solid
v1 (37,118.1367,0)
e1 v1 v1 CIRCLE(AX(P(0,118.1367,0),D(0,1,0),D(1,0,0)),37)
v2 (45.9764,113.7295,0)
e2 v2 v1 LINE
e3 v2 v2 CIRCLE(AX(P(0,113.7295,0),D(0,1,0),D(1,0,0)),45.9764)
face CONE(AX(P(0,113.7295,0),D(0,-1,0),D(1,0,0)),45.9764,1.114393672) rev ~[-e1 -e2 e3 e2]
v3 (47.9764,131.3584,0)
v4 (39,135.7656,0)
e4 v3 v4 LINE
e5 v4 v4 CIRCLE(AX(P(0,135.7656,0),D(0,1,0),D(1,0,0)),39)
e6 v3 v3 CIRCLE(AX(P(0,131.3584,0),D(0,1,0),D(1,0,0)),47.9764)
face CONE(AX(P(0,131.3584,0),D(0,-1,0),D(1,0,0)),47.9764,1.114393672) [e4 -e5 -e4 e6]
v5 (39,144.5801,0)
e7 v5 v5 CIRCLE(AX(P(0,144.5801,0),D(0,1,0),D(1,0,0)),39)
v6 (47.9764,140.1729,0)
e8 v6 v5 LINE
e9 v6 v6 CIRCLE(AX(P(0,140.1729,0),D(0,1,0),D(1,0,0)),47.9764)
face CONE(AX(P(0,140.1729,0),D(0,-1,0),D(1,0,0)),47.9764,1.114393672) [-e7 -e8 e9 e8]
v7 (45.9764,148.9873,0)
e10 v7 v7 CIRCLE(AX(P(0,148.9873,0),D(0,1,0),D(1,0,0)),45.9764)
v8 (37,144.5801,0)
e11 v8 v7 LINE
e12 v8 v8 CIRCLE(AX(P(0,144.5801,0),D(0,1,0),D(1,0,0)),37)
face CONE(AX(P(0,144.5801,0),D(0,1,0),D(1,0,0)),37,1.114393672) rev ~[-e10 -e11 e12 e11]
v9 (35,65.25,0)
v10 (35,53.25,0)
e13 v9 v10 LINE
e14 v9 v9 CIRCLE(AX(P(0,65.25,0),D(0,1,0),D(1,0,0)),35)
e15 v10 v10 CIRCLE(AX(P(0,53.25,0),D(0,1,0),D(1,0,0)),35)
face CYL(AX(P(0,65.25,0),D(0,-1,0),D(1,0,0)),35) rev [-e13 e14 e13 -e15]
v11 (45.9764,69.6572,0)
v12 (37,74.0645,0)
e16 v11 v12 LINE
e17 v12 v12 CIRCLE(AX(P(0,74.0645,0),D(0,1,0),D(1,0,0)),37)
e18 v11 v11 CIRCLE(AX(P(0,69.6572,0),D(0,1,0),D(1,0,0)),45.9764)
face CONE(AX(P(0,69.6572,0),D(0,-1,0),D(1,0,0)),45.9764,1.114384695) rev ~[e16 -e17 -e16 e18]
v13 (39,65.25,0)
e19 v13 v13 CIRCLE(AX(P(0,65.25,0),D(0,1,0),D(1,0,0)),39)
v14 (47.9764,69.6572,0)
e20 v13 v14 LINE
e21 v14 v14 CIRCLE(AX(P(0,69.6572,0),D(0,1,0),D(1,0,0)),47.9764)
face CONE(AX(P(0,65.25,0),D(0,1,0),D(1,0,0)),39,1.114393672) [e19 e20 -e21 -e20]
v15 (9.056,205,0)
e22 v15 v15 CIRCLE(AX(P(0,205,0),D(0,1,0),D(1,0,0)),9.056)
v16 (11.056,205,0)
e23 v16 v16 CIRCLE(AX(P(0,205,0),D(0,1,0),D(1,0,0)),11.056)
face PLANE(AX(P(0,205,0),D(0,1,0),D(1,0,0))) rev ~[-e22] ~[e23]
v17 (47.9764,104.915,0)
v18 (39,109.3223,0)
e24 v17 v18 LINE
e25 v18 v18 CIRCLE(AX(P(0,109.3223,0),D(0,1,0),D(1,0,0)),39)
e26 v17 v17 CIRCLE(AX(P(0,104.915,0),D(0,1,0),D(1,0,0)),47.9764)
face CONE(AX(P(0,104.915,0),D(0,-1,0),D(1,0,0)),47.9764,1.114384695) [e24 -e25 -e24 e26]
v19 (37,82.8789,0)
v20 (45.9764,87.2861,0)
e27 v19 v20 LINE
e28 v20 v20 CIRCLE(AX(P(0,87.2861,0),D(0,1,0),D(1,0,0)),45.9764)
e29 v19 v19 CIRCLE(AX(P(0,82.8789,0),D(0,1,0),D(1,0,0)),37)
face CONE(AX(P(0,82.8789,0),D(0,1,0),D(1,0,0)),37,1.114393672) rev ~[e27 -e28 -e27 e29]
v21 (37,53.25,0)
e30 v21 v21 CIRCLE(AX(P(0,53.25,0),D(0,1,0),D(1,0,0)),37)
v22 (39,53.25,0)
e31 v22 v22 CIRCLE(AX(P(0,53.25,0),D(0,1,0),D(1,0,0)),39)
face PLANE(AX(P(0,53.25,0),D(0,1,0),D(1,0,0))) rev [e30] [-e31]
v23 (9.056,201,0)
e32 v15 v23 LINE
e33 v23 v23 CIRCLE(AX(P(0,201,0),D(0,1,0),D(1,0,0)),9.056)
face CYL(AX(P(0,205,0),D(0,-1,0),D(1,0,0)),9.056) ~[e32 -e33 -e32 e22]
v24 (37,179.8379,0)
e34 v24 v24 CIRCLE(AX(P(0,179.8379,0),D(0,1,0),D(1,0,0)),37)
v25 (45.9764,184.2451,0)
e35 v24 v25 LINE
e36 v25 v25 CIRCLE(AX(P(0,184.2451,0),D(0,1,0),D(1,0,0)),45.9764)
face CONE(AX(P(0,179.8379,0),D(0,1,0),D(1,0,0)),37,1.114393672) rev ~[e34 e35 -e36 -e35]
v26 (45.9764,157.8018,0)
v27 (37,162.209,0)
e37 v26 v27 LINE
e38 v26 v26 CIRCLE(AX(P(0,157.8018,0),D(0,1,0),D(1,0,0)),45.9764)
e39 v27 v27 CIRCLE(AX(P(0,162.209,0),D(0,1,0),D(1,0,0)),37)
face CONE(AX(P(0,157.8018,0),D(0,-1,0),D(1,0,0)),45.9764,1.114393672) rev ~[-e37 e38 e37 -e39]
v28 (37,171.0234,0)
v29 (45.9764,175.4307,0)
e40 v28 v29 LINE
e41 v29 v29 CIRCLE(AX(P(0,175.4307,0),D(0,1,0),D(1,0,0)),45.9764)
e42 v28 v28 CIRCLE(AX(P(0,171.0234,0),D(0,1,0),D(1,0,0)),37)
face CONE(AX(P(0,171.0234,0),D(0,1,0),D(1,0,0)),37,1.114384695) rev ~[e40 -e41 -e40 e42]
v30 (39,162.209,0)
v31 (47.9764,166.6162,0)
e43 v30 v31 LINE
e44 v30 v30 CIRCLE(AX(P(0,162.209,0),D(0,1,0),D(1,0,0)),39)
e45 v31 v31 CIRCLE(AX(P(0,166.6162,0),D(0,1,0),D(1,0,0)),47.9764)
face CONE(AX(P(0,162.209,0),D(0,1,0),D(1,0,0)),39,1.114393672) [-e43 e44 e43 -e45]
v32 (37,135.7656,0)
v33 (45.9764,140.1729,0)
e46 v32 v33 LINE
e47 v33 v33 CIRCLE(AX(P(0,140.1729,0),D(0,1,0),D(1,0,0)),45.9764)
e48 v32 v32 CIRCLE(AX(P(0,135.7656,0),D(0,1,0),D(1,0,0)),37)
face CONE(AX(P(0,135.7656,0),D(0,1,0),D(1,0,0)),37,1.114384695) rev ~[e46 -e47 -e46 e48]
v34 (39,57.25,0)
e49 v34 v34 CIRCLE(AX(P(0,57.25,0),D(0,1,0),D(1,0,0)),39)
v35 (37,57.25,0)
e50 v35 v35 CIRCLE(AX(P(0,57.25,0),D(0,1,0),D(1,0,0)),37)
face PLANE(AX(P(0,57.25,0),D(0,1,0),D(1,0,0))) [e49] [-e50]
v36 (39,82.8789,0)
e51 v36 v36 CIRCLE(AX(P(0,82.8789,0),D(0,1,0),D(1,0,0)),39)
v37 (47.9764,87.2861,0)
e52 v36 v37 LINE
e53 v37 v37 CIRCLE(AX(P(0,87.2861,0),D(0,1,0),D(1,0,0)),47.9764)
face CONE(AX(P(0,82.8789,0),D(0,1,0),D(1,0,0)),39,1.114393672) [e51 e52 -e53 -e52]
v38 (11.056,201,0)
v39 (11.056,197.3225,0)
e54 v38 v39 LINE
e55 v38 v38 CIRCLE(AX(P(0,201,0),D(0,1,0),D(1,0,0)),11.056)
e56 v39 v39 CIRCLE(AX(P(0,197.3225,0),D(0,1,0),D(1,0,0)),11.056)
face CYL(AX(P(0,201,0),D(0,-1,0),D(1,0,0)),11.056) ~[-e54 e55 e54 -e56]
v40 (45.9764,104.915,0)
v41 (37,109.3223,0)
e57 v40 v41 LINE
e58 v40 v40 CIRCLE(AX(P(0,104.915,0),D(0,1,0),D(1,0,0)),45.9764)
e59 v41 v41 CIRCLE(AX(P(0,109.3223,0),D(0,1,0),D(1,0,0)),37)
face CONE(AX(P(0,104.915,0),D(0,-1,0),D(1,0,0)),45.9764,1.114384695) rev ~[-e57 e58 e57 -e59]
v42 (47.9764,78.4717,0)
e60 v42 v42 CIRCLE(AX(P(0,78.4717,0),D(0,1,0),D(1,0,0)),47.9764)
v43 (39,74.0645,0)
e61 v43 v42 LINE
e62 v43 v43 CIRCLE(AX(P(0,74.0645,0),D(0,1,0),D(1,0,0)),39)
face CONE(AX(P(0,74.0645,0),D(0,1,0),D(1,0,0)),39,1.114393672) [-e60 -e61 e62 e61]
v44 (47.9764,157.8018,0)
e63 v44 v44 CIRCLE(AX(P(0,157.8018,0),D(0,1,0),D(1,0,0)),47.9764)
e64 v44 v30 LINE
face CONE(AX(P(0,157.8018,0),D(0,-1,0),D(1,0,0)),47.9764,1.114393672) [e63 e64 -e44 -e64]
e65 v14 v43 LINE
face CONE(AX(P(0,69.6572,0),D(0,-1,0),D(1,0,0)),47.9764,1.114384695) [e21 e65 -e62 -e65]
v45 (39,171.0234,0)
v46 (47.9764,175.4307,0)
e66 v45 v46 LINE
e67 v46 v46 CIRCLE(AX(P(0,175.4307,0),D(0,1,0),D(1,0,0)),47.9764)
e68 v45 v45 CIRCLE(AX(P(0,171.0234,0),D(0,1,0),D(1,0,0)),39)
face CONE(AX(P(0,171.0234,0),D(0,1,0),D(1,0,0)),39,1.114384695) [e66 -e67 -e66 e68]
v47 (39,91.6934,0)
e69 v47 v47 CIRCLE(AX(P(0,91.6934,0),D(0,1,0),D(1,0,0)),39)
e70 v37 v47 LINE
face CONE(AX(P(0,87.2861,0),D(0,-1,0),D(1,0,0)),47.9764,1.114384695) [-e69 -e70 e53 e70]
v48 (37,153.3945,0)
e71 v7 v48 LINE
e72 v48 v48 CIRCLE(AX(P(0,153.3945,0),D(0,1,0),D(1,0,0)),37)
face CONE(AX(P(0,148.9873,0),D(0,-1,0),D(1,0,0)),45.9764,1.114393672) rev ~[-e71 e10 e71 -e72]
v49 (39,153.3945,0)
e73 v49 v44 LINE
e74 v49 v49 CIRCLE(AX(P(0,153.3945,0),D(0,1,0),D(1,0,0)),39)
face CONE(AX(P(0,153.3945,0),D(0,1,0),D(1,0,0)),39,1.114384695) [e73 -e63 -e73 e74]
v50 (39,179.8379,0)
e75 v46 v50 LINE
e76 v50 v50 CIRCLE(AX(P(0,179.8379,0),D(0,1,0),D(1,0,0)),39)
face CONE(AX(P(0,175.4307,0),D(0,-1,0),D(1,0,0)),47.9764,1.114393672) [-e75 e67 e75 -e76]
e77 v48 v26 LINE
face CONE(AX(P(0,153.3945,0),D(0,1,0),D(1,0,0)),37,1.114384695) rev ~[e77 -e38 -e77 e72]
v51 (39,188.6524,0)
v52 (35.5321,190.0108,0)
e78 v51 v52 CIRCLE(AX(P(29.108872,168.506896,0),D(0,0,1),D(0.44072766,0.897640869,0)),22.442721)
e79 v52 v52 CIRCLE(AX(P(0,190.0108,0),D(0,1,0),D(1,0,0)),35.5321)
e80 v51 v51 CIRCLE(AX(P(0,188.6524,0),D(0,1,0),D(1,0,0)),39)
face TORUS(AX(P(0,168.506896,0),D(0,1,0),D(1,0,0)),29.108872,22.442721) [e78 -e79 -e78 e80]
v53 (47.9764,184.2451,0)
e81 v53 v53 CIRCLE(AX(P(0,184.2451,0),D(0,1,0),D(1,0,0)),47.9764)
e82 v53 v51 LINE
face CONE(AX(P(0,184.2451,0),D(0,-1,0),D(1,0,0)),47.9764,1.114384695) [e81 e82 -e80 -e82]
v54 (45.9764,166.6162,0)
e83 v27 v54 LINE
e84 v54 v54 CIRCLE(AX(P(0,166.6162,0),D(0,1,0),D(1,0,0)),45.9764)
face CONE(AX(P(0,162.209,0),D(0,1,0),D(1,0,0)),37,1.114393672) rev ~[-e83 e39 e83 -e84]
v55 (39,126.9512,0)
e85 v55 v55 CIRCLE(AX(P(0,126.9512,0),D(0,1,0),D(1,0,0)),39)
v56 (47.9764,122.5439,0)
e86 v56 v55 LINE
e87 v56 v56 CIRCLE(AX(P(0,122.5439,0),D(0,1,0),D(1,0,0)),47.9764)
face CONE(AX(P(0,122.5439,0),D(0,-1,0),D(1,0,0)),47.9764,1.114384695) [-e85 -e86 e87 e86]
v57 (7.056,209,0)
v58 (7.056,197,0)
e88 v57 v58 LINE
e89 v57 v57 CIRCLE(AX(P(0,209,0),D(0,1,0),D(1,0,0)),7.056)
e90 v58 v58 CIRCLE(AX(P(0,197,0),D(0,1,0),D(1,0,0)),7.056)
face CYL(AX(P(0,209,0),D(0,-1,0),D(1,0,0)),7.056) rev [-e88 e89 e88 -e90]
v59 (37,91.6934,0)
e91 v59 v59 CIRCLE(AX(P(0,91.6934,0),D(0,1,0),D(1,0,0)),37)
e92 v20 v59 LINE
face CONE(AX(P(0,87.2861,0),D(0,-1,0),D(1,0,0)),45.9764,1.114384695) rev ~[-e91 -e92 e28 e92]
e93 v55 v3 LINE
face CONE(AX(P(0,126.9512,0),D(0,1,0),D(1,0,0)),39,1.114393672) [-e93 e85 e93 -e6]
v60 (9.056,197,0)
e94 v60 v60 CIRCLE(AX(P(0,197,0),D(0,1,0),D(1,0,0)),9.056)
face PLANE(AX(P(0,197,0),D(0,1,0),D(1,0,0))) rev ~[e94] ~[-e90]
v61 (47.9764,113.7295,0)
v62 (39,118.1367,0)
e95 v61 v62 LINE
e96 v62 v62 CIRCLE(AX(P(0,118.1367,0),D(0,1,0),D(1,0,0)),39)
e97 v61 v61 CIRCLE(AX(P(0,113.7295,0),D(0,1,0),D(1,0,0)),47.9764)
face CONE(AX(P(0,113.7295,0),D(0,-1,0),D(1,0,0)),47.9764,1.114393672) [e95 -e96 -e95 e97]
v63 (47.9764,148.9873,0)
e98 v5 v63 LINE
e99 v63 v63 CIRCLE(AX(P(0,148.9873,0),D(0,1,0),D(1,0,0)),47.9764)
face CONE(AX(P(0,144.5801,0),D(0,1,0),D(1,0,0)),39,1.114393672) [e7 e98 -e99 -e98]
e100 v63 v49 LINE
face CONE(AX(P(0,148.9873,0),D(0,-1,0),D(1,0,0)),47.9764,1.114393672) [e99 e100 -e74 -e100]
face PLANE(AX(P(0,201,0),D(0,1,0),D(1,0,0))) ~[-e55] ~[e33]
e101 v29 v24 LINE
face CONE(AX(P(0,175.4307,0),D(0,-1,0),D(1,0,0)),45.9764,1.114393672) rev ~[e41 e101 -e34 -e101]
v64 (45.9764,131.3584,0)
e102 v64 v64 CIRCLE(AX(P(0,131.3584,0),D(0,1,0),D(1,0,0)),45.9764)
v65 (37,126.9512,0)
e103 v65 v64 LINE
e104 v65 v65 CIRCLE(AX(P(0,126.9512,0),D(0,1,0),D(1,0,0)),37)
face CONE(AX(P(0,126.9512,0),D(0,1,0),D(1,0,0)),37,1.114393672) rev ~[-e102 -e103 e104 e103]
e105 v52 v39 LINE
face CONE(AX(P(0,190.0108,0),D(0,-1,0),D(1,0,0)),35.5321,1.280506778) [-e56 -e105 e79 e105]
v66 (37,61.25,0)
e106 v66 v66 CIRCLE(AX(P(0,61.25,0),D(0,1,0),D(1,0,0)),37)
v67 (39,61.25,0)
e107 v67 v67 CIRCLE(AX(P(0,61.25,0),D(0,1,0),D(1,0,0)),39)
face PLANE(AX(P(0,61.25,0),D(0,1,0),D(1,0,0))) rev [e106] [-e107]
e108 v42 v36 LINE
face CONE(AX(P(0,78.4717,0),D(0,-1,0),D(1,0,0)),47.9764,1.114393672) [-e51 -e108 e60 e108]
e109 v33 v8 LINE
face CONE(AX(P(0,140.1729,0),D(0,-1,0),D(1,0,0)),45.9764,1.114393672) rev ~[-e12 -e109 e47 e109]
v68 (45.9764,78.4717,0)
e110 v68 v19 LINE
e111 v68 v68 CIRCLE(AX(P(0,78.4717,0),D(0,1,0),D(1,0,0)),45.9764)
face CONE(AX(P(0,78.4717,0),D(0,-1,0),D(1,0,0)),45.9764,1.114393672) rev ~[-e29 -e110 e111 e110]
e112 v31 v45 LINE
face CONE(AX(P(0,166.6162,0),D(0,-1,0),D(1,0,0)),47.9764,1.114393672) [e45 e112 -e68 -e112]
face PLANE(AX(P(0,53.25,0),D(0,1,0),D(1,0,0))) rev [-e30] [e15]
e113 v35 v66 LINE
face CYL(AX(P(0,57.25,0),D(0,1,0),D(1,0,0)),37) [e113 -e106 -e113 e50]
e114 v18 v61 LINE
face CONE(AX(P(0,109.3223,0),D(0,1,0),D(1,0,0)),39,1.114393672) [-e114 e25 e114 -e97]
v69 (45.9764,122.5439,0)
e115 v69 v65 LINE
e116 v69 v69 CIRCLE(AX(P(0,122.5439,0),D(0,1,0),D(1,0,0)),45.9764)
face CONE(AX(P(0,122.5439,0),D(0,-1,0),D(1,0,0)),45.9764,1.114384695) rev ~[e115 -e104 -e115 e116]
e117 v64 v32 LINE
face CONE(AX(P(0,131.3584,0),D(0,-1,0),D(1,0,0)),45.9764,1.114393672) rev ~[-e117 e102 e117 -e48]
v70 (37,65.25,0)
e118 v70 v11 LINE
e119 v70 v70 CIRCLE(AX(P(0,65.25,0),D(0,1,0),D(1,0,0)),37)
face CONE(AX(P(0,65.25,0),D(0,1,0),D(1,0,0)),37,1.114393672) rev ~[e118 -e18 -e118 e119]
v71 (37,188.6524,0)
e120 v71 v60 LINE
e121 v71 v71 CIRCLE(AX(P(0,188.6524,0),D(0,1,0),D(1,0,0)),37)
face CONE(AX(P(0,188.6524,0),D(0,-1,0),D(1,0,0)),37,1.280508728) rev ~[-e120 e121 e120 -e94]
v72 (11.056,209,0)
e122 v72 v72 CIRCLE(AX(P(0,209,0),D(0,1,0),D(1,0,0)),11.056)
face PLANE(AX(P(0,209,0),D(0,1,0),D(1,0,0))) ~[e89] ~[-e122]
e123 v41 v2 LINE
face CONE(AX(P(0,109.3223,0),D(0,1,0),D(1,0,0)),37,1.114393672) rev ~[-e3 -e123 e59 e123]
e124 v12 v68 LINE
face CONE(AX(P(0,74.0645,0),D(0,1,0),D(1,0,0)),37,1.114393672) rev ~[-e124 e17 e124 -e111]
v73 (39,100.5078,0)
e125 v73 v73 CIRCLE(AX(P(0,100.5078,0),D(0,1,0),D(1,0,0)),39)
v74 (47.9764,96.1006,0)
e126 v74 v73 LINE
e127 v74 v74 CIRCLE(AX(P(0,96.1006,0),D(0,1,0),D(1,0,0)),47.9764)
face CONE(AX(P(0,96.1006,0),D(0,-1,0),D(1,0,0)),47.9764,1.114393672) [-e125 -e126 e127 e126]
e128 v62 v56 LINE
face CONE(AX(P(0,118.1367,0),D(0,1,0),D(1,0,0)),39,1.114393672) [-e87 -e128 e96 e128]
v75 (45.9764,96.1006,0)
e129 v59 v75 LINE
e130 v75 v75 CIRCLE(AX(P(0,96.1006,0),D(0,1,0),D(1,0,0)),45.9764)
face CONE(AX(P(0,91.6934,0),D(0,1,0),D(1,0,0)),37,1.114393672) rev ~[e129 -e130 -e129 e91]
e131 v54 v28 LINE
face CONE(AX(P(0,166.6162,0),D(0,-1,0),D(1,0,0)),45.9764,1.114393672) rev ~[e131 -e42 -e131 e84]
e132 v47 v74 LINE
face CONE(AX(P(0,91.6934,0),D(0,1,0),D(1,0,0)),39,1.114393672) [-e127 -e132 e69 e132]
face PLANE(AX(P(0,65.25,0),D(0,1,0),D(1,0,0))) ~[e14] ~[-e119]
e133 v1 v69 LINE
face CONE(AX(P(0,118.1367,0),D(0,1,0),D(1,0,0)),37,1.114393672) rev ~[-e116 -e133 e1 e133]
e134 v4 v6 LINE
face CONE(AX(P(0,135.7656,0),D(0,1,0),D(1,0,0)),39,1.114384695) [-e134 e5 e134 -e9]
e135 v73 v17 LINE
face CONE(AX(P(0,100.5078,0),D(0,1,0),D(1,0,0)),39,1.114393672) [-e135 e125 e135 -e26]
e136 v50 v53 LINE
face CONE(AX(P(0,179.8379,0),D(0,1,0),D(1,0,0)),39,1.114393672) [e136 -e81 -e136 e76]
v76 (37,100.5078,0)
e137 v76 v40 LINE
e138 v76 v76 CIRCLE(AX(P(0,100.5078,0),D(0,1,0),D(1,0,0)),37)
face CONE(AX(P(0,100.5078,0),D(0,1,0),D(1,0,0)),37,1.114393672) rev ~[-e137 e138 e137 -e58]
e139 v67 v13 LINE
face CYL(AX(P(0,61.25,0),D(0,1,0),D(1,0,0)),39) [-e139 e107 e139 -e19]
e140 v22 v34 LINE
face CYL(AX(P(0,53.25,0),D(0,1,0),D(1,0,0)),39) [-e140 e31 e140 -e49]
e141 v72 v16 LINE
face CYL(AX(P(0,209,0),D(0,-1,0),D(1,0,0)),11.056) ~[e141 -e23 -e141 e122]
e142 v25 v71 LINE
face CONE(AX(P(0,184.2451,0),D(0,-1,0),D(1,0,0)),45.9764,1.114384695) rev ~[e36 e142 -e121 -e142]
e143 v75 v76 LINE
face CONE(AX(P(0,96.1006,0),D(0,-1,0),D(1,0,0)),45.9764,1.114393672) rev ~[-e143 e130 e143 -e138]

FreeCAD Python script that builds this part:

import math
import FreeCAD as App
import Part
import Sketcher

V = App.Vector
Q = App.Units.Quantity

doc = App.newDocument("Part")
params = doc.addObject("Spreadsheet::Sheet", "Params")
for row, (alias, value) in enumerate([
    ("sketch1_width", "2 mm"),
    ("sketch1_length", "10 mm"),
    ("revolution_angle", "360 deg"),
], start=1):
    params.set(f"A{row}", alias)
    params.set(f"B{row}", "=" + value)
    params.setAlias(f"B{row}", alias)

body = doc.addObject("PartDesign::Body", "Body")

# Sketch on XY plane
sketch1 = doc.addObject("Sketcher::SketchObject", "Sketch")
body.addObject(sketch1)
sketch1.AttachmentSupport = (doc.XY_Plane, [""])
sketch1.MapMode = "FlatFace"
sketch1.addGeometry(Part.LineSegment(V(37, 65.2, 0), V(35, 65.2, 0)), False)
sketch1.addGeometry(Part.LineSegment(V(35, 65.2, 0), V(35, 53.2, 0)), False)
sketch1.addGeometry(Part.LineSegment(V(35, 53.2, 0), V(39, 53.2, 0)), False)
sketch1.addGeometry(Part.LineSegment(V(39, 53.2, 0), V(39, 57.2, 0)), False)
sketch1.addGeometry(Part.LineSegment(V(39, 57.2, 0), V(37, 57.2, 0)), False)
sketch1.addGeometry(Part.LineSegment(V(37, 57.2, 0), V(37, 61.2, 0)), False)
sketch1.addGeometry(Part.LineSegment(V(37, 61.2, 0), V(39, 61.2, 0)), False)
sketch1.addGeometry(Part.LineSegment(V(39, 61.2, 0), V(39, 65.2, 0)), False)
sketch1.addGeometry(Part.LineSegment(V(39, 65.2, 0), V(48, 69.7, 0)), False)
sketch1.addGeometry(Part.LineSegment(V(48, 69.7, 0), V(39, 74.1, 0)), False)
sketch1.addGeometry(Part.LineSegment(V(39, 74.1, 0), V(48, 78.5, 0)), False)
sketch1.addGeometry(Part.LineSegment(V(48, 78.5, 0), V(39, 82.9, 0)), False)
sketch1.addGeometry(Part.LineSegment(V(39, 82.9, 0), V(48, 87.3, 0)), False)
sketch1.addGeometry(Part.LineSegment(V(48, 87.3, 0), V(39, 91.7, 0)), False)
sketch1.addGeometry(Part.LineSegment(V(39, 91.7, 0), V(48, 96.1, 0)), False)
sketch1.addGeometry(Part.LineSegment(V(48, 96.1, 0), V(39, 100.5, 0)), False)
sketch1.addGeometry(Part.LineSegment(V(39, 100.5, 0), V(48, 104.9, 0)), False)
sketch1.addGeometry(Part.LineSegment(V(48, 104.9, 0), V(39, 109.3, 0)), False)
sketch1.addGeometry(Part.LineSegment(V(39, 109.3, 0), V(48, 113.7, 0)), False)
sketch1.addGeometry(Part.LineSegment(V(48, 113.7, 0), V(39, 118.1, 0)), False)
sketch1.addGeometry(Part.LineSegment(V(39, 118.1, 0), V(48, 122.5, 0)), False)
sketch1.addGeometry(Part.LineSegment(V(48, 122.5, 0), V(39, 127, 0)), False)
sketch1.addGeometry(Part.LineSegment(V(39, 127, 0), V(48, 131.4, 0)), False)
sketch1.addGeometry(Part.LineSegment(V(48, 131.4, 0), V(39, 135.8, 0)), False)
sketch1.addGeometry(Part.LineSegment(V(39, 135.8, 0), V(48, 140.2, 0)), False)
sketch1.addGeometry(Part.LineSegment(V(48, 140.2, 0), V(39, 144.6, 0)), False)
sketch1.addGeometry(Part.LineSegment(V(39, 144.6, 0), V(48, 149, 0)), False)
sketch1.addGeometry(Part.LineSegment(V(48, 149, 0), V(39, 153.4, 0)), False)
sketch1.addGeometry(Part.LineSegment(V(39, 153.4, 0), V(48, 157.8, 0)), False)
sketch1.addGeometry(Part.LineSegment(V(48, 157.8, 0), V(39, 162.2, 0)), False)
sketch1.addGeometry(Part.LineSegment(V(39, 162.2, 0), V(48, 166.6, 0)), False)
sketch1.addGeometry(Part.LineSegment(V(48, 166.6, 0), V(39, 171, 0)), False)
sketch1.addGeometry(Part.LineSegment(V(39, 171, 0), V(48, 175.4, 0)), False)
sketch1.addGeometry(Part.LineSegment(V(48, 175.4, 0), V(39, 179.8, 0)), False)
sketch1.addGeometry(Part.LineSegment(V(39, 179.8, 0), V(48, 184.2, 0)), False)
sketch1.addGeometry(Part.LineSegment(V(48, 184.2, 0), V(39, 188.7, 0)), False)
sketch1.addGeometry(Part.ArcOfCircle(Part.Circle(V(29.1, 168.5, 0), V(0, 0, 1), 22.4), math.radians(63.85), math.radians(73.37)), False)
sketch1.addGeometry(Part.LineSegment(V(35.5, 190, 0), V(11.1, 197.3, 0)), False)
sketch1.addGeometry(Part.LineSegment(V(11.1, 197.3, 0), V(11.1, 201, 0)), False)
sketch1.addGeometry(Part.LineSegment(V(11.1, 201, 0), V(9.1, 201, 0)), False)
sketch1.addGeometry(Part.LineSegment(V(9.1, 201, 0), V(9.1, 205, 0)), False)
sketch1.addGeometry(Part.LineSegment(V(9.1, 205, 0), V(11.1, 205, 0)), False)
sketch1.addGeometry(Part.LineSegment(V(11.1, 205, 0), V(11.1, 209, 0)), False)
sketch1.addGeometry(Part.LineSegment(V(11.1, 209, 0), V(7.1, 209, 0)), False)
sketch1.addGeometry(Part.LineSegment(V(7.1, 209, 0), V(7.1, 197, 0)), False)
sketch1.addGeometry(Part.LineSegment(V(7.1, 197, 0), V(9.1, 197, 0)), False)
sketch1.addGeometry(Part.LineSegment(V(9.1, 197, 0), V(37, 188.7, 0)), False)
sketch1.addGeometry(Part.LineSegment(V(37, 188.7, 0), V(46, 184.2, 0)), False)
sketch1.addGeometry(Part.LineSegment(V(46, 184.2, 0), V(37, 179.8, 0)), False)
sketch1.addGeometry(Part.LineSegment(V(37, 179.8, 0), V(46, 175.4, 0)), False)
sketch1.addGeometry(Part.LineSegment(V(46, 175.4, 0), V(37, 171, 0)), False)
sketch1.addGeometry(Part.LineSegment(V(37, 171, 0), V(46, 166.6, 0)), False)
sketch1.addGeometry(Part.LineSegment(V(46, 166.6, 0), V(37, 162.2, 0)), False)
sketch1.addGeometry(Part.LineSegment(V(37, 162.2, 0), V(46, 157.8, 0)), False)
sketch1.addGeometry(Part.LineSegment(V(46, 157.8, 0), V(37, 153.4, 0)), False)
sketch1.addGeometry(Part.LineSegment(V(37, 153.4, 0), V(46, 149, 0)), False)
sketch1.addGeometry(Part.LineSegment(V(46, 149, 0), V(37, 144.6, 0)), False)
sketch1.addGeometry(Part.LineSegment(V(37, 144.6, 0), V(46, 140.2, 0)), False)
sketch1.addGeometry(Part.LineSegment(V(46, 140.2, 0), V(37, 135.8, 0)), False)
sketch1.addGeometry(Part.LineSegment(V(37, 135.8, 0), V(46, 131.4, 0)), False)
sketch1.addGeometry(Part.LineSegment(V(46, 131.4, 0), V(37, 127, 0)), False)
sketch1.addGeometry(Part.LineSegment(V(37, 127, 0), V(46, 122.5, 0)), False)
sketch1.addGeometry(Part.LineSegment(V(46, 122.5, 0), V(37, 118.1, 0)), False)
sketch1.addGeometry(Part.LineSegment(V(37, 118.1, 0), V(46, 113.7, 0)), False)
sketch1.addGeometry(Part.LineSegment(V(46, 113.7, 0), V(37, 109.3, 0)), False)
sketch1.addGeometry(Part.LineSegment(V(37, 109.3, 0), V(46, 104.9, 0)), False)
sketch1.addGeometry(Part.LineSegment(V(46, 104.9, 0), V(37, 100.5, 0)), False)
sketch1.addGeometry(Part.LineSegment(V(37, 100.5, 0), V(46, 96.1, 0)), False)
sketch1.addGeometry(Part.LineSegment(V(46, 96.1, 0), V(37, 91.7, 0)), False)
sketch1.addGeometry(Part.LineSegment(V(37, 91.7, 0), V(46, 87.3, 0)), False)
sketch1.addGeometry(Part.LineSegment(V(46, 87.3, 0), V(37, 82.9, 0)), False)
sketch1.addGeometry(Part.LineSegment(V(37, 82.9, 0), V(46, 78.5, 0)), False)
sketch1.addGeometry(Part.LineSegment(V(46, 78.5, 0), V(37, 74.1, 0)), False)
sketch1.addGeometry(Part.LineSegment(V(37, 74.1, 0), V(46, 69.7, 0)), False)
sketch1.addGeometry(Part.LineSegment(V(46, 69.7, 0), V(37, 65.2, 0)), False)
sketch1.addConstraint(Sketcher.Constraint("Coincident", 0, 2, 1, 1))
sketch1.addConstraint(Sketcher.Constraint("Coincident", 1, 2, 2, 1))
sketch1.addConstraint(Sketcher.Constraint("Coincident", 2, 2, 3, 1))
sketch1.addConstraint(Sketcher.Constraint("Coincident", 3, 2, 4, 1))
sketch1.addConstraint(Sketcher.Constraint("Coincident", 4, 2, 5, 1))
sketch1.addConstraint(Sketcher.Constraint("Coincident", 5, 2, 6, 1))
sketch1.addConstraint(Sketcher.Constraint("Coincident", 6, 2, 7, 1))
sketch1.addConstraint(Sketcher.Constraint("Coincident", 7, 2, 8, 1))
sketch1.addConstraint(Sketcher.Constraint("Coincident", 8, 2, 9, 1))
sketch1.addConstraint(Sketcher.Constraint("Coincident", 9, 2, 10, 1))
sketch1.addConstraint(Sketcher.Constraint("Coincident", 10, 2, 11, 1))
sketch1.addConstraint(Sketcher.Constraint("Coincident", 11, 2, 12, 1))
sketch1.addConstraint(Sketcher.Constraint("Coincident", 12, 2, 13, 1))
sketch1.addConstraint(Sketcher.Constraint("Coincident", 13, 2, 14, 1))
sketch1.addConstraint(Sketcher.Constraint("Coincident", 14, 2, 15, 1))
sketch1.addConstraint(Sketcher.Constraint("Coincident", 15, 2, 16, 1))
sketch1.addConstraint(Sketcher.Constraint("Coincident", 16, 2, 17, 1))
sketch1.addConstraint(Sketcher.Constraint("Coincident", 17, 2, 18, 1))
sketch1.addConstraint(Sketcher.Constraint("Coincident", 18, 2, 19, 1))
sketch1.addConstraint(Sketcher.Constraint("Coincident", 19, 2, 20, 1))
sketch1.addConstraint(Sketcher.Constraint("Coincident", 20, 2, 21, 1))
sketch1.addConstraint(Sketcher.Constraint("Coincident", 21, 2, 22, 1))
sketch1.addConstraint(Sketcher.Constraint("Coincident", 22, 2, 23, 1))
sketch1.addConstraint(Sketcher.Constraint("Coincident", 23, 2, 24, 1))
sketch1.addConstraint(Sketcher.Constraint("Coincident", 24, 2, 25, 1))
sketch1.addConstraint(Sketcher.Constraint("Coincident", 25, 2, 26, 1))
sketch1.addConstraint(Sketcher.Constraint("Coincident", 26, 2, 27, 1))
sketch1.addConstraint(Sketcher.Constraint("Coincident", 27, 2, 28, 1))
sketch1.addConstraint(Sketcher.Constraint("Coincident", 28, 2, 29, 1))
sketch1.addConstraint(Sketcher.Constraint("Coincident", 29, 2, 30, 1))
sketch1.addConstraint(Sketcher.Constraint("Coincident", 30, 2, 31, 1))
sketch1.addConstraint(Sketcher.Constraint("Coincident", 31, 2, 32, 1))
sketch1.addConstraint(Sketcher.Constraint("Coincident", 32, 2, 33, 1))
sketch1.addConstraint(Sketcher.Constraint("Coincident", 33, 2, 34, 1))
sketch1.addConstraint(Sketcher.Constraint("Coincident", 34, 2, 35, 1))
sketch1.addConstraint(Sketcher.Constraint("Tangent", 35, 2, 36, 1))
sketch1.addConstraint(Sketcher.Constraint("Tangent", 36, 2, 37, 1))
sketch1.addConstraint(Sketcher.Constraint("Coincident", 37, 2, 38, 1))
sketch1.addConstraint(Sketcher.Constraint("Coincident", 38, 2, 39, 1))
sketch1.addConstraint(Sketcher.Constraint("Coincident", 39, 2, 40, 1))
sketch1.addConstraint(Sketcher.Constraint("Coincident", 40, 2, 41, 1))
sketch1.addConstraint(Sketcher.Constraint("Coincident", 41, 2, 42, 1))
sketch1.addConstraint(Sketcher.Constraint("Coincident", 42, 2, 43, 1))
sketch1.addConstraint(Sketcher.Constraint("Coincident", 43, 2, 44, 1))
sketch1.addConstraint(Sketcher.Constraint("Coincident", 44, 2, 45, 1))
sketch1.addConstraint(Sketcher.Constraint("Coincident", 45, 2, 46, 1))
sketch1.addConstraint(Sketcher.Constraint("Coincident", 46, 2, 47, 1))
sketch1.addConstraint(Sketcher.Constraint("Coincident", 47, 2, 48, 1))
sketch1.addConstraint(Sketcher.Constraint("Coincident", 48, 2, 49, 1))
sketch1.addConstraint(Sketcher.Constraint("Coincident", 49, 2, 50, 1))
sketch1.addConstraint(Sketcher.Constraint("Coincident", 50, 2, 51, 1))
sketch1.addConstraint(Sketcher.Constraint("Coincident", 51, 2, 52, 1))
sketch1.addConstraint(Sketcher.Constraint("Coincident", 52, 2, 53, 1))
sketch1.addConstraint(Sketcher.Constraint("Coincident", 53, 2, 54, 1))
sketch1.addConstraint(Sketcher.Constraint("Coincident", 54, 2, 55, 1))
sketch1.addConstraint(Sketcher.Constraint("Coincident", 55, 2, 56, 1))
sketch1.addConstraint(Sketcher.Constraint("Coincident", 56, 2, 57, 1))
sketch1.addConstraint(Sketcher.Constraint("Coincident", 57, 2, 58, 1))
sketch1.addConstraint(Sketcher.Constraint("Coincident", 58, 2, 59, 1))
sketch1.addConstraint(Sketcher.Constraint("Coincident", 59, 2, 60, 1))
sketch1.addConstraint(Sketcher.Constraint("Coincident", 60, 2, 61, 1))
sketch1.addConstraint(Sketcher.Constraint("Coincident", 61, 2, 62, 1))
sketch1.addConstraint(Sketcher.Constraint("Coincident", 62, 2, 63, 1))
sketch1.addConstraint(Sketcher.Constraint("Coincident", 63, 2, 64, 1))
sketch1.addConstraint(Sketcher.Constraint("Coincident", 64, 2, 65, 1))
sketch1.addConstraint(Sketcher.Constraint("Coincident", 65, 2, 66, 1))
sketch1.addConstraint(Sketcher.Constraint("Coincident", 66, 2, 67, 1))
sketch1.addConstraint(Sketcher.Constraint("Coincident", 67, 2, 68, 1))
sketch1.addConstraint(Sketcher.Constraint("Coincident", 68, 2, 69, 1))
sketch1.addConstraint(Sketcher.Constraint("Coincident", 69, 2, 70, 1))
sketch1.addConstraint(Sketcher.Constraint("Coincident", 70, 2, 71, 1))
sketch1.addConstraint(Sketcher.Constraint("Coincident", 71, 2, 72, 1))
sketch1.addConstraint(Sketcher.Constraint("Coincident", 72, 2, 73, 1))
sketch1.addConstraint(Sketcher.Constraint("Coincident", 73, 2, 74, 1))
sketch1.addConstraint(Sketcher.Constraint("Coincident", 74, 2, 0, 1))
sketch1.addConstraint(Sketcher.Constraint("Horizontal", 0))
sketch1.addConstraint(Sketcher.Constraint("Vertical", 1))
sketch1.addConstraint(Sketcher.Constraint("Horizontal", 2))
sketch1.addConstraint(Sketcher.Constraint("Vertical", 3))
sketch1.addConstraint(Sketcher.Constraint("Horizontal", 4))
sketch1.addConstraint(Sketcher.Constraint("Vertical", 5))
sketch1.addConstraint(Sketcher.Constraint("Horizontal", 6))
sketch1.addConstraint(Sketcher.Constraint("Vertical", 7))
sketch1.addConstraint(Sketcher.Constraint("Vertical", 38))
sketch1.addConstraint(Sketcher.Constraint("Horizontal", 39))
sketch1.addConstraint(Sketcher.Constraint("Vertical", 40))
sketch1.addConstraint(Sketcher.Constraint("Horizontal", 41))
sketch1.addConstraint(Sketcher.Constraint("Vertical", 42))
sketch1.addConstraint(Sketcher.Constraint("Horizontal", 43))
sketch1.addConstraint(Sketcher.Constraint("Vertical", 44))
sketch1.addConstraint(Sketcher.Constraint("Horizontal", 45))
sketch1.addConstraint(Sketcher.Constraint("Parallel", 8, 10))
sketch1.addConstraint(Sketcher.Constraint("Parallel", 9, 11))
sketch1.addConstraint(Sketcher.Constraint("Parallel", 10, 12))
sketch1.addConstraint(Sketcher.Constraint("Parallel", 11, 13))
sketch1.addConstraint(Sketcher.Constraint("Parallel", 12, 14))
sketch1.addConstraint(Sketcher.Constraint("Parallel", 13, 15))
sketch1.addConstraint(Sketcher.Constraint("Parallel", 14, 16))
sketch1.addConstraint(Sketcher.Constraint("Parallel", 15, 17))
sketch1.addConstraint(Sketcher.Constraint("Parallel", 16, 18))
sketch1.addConstraint(Sketcher.Constraint("Parallel", 17, 19))
sketch1.addConstraint(Sketcher.Constraint("Parallel", 18, 20))
sketch1.addConstraint(Sketcher.Constraint("Parallel", 19, 21))
sketch1.addConstraint(Sketcher.Constraint("Parallel", 20, 22))
sketch1.addConstraint(Sketcher.Constraint("Parallel", 21, 23))
sketch1.addConstraint(Sketcher.Constraint("Parallel", 22, 24))
sketch1.addConstraint(Sketcher.Constraint("Parallel", 23, 25))
sketch1.addConstraint(Sketcher.Constraint("Parallel", 24, 26))
sketch1.addConstraint(Sketcher.Constraint("Parallel", 25, 27))
sketch1.addConstraint(Sketcher.Constraint("Parallel", 26, 28))
sketch1.addConstraint(Sketcher.Constraint("Parallel", 27, 29))
sketch1.addConstraint(Sketcher.Constraint("Parallel", 28, 30))
sketch1.addConstraint(Sketcher.Constraint("Parallel", 29, 31))
sketch1.addConstraint(Sketcher.Constraint("Parallel", 30, 32))
sketch1.addConstraint(Sketcher.Constraint("Parallel", 31, 33))
sketch1.addConstraint(Sketcher.Constraint("Parallel", 32, 34))
sketch1.addConstraint(Sketcher.Constraint("Parallel", 33, 35))
sketch1.addConstraint(Sketcher.Constraint("Parallel", 37, 46))
sketch1.addConstraint(Sketcher.Constraint("Parallel", 35, 47))
sketch1.addConstraint(Sketcher.Constraint("Parallel", 34, 48))
sketch1.addConstraint(Sketcher.Constraint("Parallel", 47, 49))
sketch1.addConstraint(Sketcher.Constraint("Parallel", 48, 50))
sketch1.addConstraint(Sketcher.Constraint("Parallel", 49, 51))
sketch1.addConstraint(Sketcher.Constraint("Parallel", 50, 52))
sketch1.addConstraint(Sketcher.Constraint("Parallel", 51, 53))
sketch1.addConstraint(Sketcher.Constraint("Parallel", 52, 54))
sketch1.addConstraint(Sketcher.Constraint("Parallel", 53, 55))
sketch1.addConstraint(Sketcher.Constraint("Parallel", 54, 56))
sketch1.addConstraint(Sketcher.Constraint("Parallel", 55, 57))
sketch1.addConstraint(Sketcher.Constraint("Parallel", 56, 58))
sketch1.addConstraint(Sketcher.Constraint("Parallel", 57, 59))
sketch1.addConstraint(Sketcher.Constraint("Parallel", 58, 60))
sketch1.addConstraint(Sketcher.Constraint("Parallel", 59, 61))
sketch1.addConstraint(Sketcher.Constraint("Parallel", 60, 62))
sketch1.addConstraint(Sketcher.Constraint("Parallel", 61, 63))
sketch1.addConstraint(Sketcher.Constraint("Parallel", 62, 64))
sketch1.addConstraint(Sketcher.Constraint("Parallel", 63, 65))
sketch1.addConstraint(Sketcher.Constraint("Parallel", 64, 66))
sketch1.addConstraint(Sketcher.Constraint("Parallel", 65, 67))
sketch1.addConstraint(Sketcher.Constraint("Parallel", 66, 68))
sketch1.addConstraint(Sketcher.Constraint("Parallel", 67, 69))
sketch1.addConstraint(Sketcher.Constraint("Parallel", 68, 70))
sketch1.addConstraint(Sketcher.Constraint("Parallel", 69, 71))
sketch1.addConstraint(Sketcher.Constraint("Parallel", 70, 72))
sketch1.addConstraint(Sketcher.Constraint("Parallel", 71, 73))
sketch1.addConstraint(Sketcher.Constraint("Parallel", 72, 74))
sketch1.addConstraint(Sketcher.Constraint("Horizontal", 0, 2, 7, 2))
sketch1.addConstraint(Sketcher.Constraint("Horizontal", 35, 2, 46, 2))
sketch1.addConstraint(Sketcher.Constraint("Horizontal", 34, 2, 47, 2))
sketch1.addConstraint(Sketcher.Constraint("Horizontal", 33, 2, 48, 2))
sketch1.addConstraint(Sketcher.Constraint("Horizontal", 32, 2, 49, 2))
sketch1.addConstraint(Sketcher.Constraint("Horizontal", 31, 2, 50, 2))
sketch1.addConstraint(Sketcher.Constraint("Horizontal", 30, 2, 51, 2))
sketch1.addConstraint(Sketcher.Constraint("Horizontal", 29, 2, 52, 2))
sketch1.addConstraint(Sketcher.Constraint("Horizontal", 28, 2, 53, 2))
sketch1.addConstraint(Sketcher.Constraint("Horizontal", 27, 2, 54, 2))
sketch1.addConstraint(Sketcher.Constraint("Horizontal", 26, 2, 55, 2))
sketch1.addConstraint(Sketcher.Constraint("Horizontal", 25, 2, 56, 2))
sketch1.addConstraint(Sketcher.Constraint("Horizontal", 24, 2, 57, 2))
sketch1.addConstraint(Sketcher.Constraint("Horizontal", 23, 2, 58, 2))
sketch1.addConstraint(Sketcher.Constraint("Horizontal", 22, 2, 59, 2))
sketch1.addConstraint(Sketcher.Constraint("Horizontal", 21, 2, 60, 2))
sketch1.addConstraint(Sketcher.Constraint("Horizontal", 20, 2, 61, 2))
sketch1.addConstraint(Sketcher.Constraint("Horizontal", 19, 2, 62, 2))
sketch1.addConstraint(Sketcher.Constraint("Horizontal", 18, 2, 63, 2))
sketch1.addConstraint(Sketcher.Constraint("Horizontal", 17, 2, 64, 2))
sketch1.addConstraint(Sketcher.Constraint("Horizontal", 16, 2, 65, 2))
sketch1.addConstraint(Sketcher.Constraint("Horizontal", 15, 2, 66, 2))
sketch1.addConstraint(Sketcher.Constraint("Horizontal", 14, 2, 67, 2))
sketch1.addConstraint(Sketcher.Constraint("Horizontal", 13, 2, 68, 2))
sketch1.addConstraint(Sketcher.Constraint("Horizontal", 12, 2, 69, 2))
sketch1.addConstraint(Sketcher.Constraint("Horizontal", 11, 2, 70, 2))
sketch1.addConstraint(Sketcher.Constraint("Horizontal", 10, 2, 71, 2))
sketch1.addConstraint(Sketcher.Constraint("Horizontal", 9, 2, 72, 2))
sketch1.addConstraint(Sketcher.Constraint("Horizontal", 8, 2, 73, 2))
sketch1.addConstraint(Sketcher.Constraint("Vertical", 3, 2, 6, 2))
sketch1.addConstraint(Sketcher.Constraint("Vertical", 7, 2, 9, 2))
sketch1.addConstraint(Sketcher.Constraint("Vertical", 8, 2, 10, 2))
sketch1.addConstraint(Sketcher.Constraint("Vertical", 9, 2, 11, 2))
sketch1.addConstraint(Sketcher.Constraint("Vertical", 10, 2, 12, 2))
sketch1.addConstraint(Sketcher.Constraint("Vertical", 11, 2, 13, 2))
sketch1.addConstraint(Sketcher.Constraint("Vertical", 12, 2, 14, 2))
sketch1.addConstraint(Sketcher.Constraint("Vertical", 13, 2, 15, 2))
sketch1.addConstraint(Sketcher.Constraint("Vertical", 14, 2, 16, 2))
sketch1.addConstraint(Sketcher.Constraint("Vertical", 15, 2, 17, 2))
sketch1.addConstraint(Sketcher.Constraint("Vertical", 16, 2, 18, 2))
sketch1.addConstraint(Sketcher.Constraint("Vertical", 17, 2, 19, 2))
sketch1.addConstraint(Sketcher.Constraint("Vertical", 18, 2, 20, 2))
sketch1.addConstraint(Sketcher.Constraint("Vertical", 19, 2, 21, 2))
sketch1.addConstraint(Sketcher.Constraint("Vertical", 20, 2, 22, 2))
sketch1.addConstraint(Sketcher.Constraint("Vertical", 21, 2, 23, 2))
sketch1.addConstraint(Sketcher.Constraint("Vertical", 22, 2, 24, 2))
sketch1.addConstraint(Sketcher.Constraint("Vertical", 23, 2, 25, 2))
sketch1.addConstraint(Sketcher.Constraint("Vertical", 24, 2, 26, 2))
sketch1.addConstraint(Sketcher.Constraint("Vertical", 25, 2, 27, 2))
sketch1.addConstraint(Sketcher.Constraint("Vertical", 26, 2, 28, 2))
sketch1.addConstraint(Sketcher.Constraint("Vertical", 27, 2, 29, 2))
sketch1.addConstraint(Sketcher.Constraint("Vertical", 28, 2, 30, 2))
sketch1.addConstraint(Sketcher.Constraint("Vertical", 29, 2, 31, 2))
sketch1.addConstraint(Sketcher.Constraint("Vertical", 30, 2, 32, 2))
sketch1.addConstraint(Sketcher.Constraint("Vertical", 31, 2, 33, 2))
sketch1.addConstraint(Sketcher.Constraint("Vertical", 32, 2, 34, 2))
sketch1.addConstraint(Sketcher.Constraint("Vertical", 33, 2, 35, 2))
sketch1.addConstraint(Sketcher.Constraint("Vertical", 38, 2, 41, 2))
sketch1.addConstraint(Sketcher.Constraint("Vertical", 40, 2, 45, 2))
sketch1.addConstraint(Sketcher.Constraint("Vertical", 5, 2, 46, 2))
sketch1.addConstraint(Sketcher.Constraint("Equal", 0, 4))
sketch1.addConstraint(Sketcher.Constraint("Equal", 6, 39))
sketch1.addConstraint(Sketcher.Constraint("Equal", 2, 43))
sketch1.addConstraint(Sketcher.Constraint("Equal", 43, 3))
sketch1.addConstraint(Sketcher.Constraint("Equal", 3, 5))
sketch1.addConstraint(Sketcher.Constraint("Equal", 5, 7))
sketch1.addConstraint(Sketcher.Constraint("Equal", 7, 40))
sketch1.addConstraint(Sketcher.Constraint("Equal", 40, 42))
sketch1.addConstraint(Sketcher.Constraint("Equal", 1, 44))
sketch1.addConstraint(Sketcher.Constraint("Equal", 8, 9))
sketch1.addConstraint(Sketcher.Constraint("DistanceX", 0, 2, 0, 1, 2.0))
sketch1.addConstraint(Sketcher.Constraint("Distance", 8, 10.0))
sketch1.addConstraint(Sketcher.Constraint("DistanceX", -1, 1, 43, 2, 7.056))
sketch1.addConstraint(Sketcher.Constraint("DistanceX", -1, 1, 0, 2, 35.0))
sketch1.addConstraint(Sketcher.Constraint("DistanceY", -1, 1, 38, 2, 201.0))
sketch1.addConstraint(Sketcher.Constraint("Angle", 8, Q("26.15 deg")))
sketch1.addConstraint(Sketcher.Constraint("Radius", 36, 22.4427))
sketch1.addConstraint(Sketcher.Constraint("DistanceY", -1, 1, 0, 2, 65.25))
sketch1.setExpression("Constraints[216]", "Params.sketch1_width")
sketch1.setExpression("Constraints[217]", "Params.sketch1_length")
revolution = doc.addObject("PartDesign::Revolution", "Revolution")
body.addObject(revolution)
revolution.Profile = sketch1
revolution.ReferenceAxis = (sketch1, ["V_Axis"])
revolution.setExpression("Angle", "Params.revolution_angle")

doc.recompute()
